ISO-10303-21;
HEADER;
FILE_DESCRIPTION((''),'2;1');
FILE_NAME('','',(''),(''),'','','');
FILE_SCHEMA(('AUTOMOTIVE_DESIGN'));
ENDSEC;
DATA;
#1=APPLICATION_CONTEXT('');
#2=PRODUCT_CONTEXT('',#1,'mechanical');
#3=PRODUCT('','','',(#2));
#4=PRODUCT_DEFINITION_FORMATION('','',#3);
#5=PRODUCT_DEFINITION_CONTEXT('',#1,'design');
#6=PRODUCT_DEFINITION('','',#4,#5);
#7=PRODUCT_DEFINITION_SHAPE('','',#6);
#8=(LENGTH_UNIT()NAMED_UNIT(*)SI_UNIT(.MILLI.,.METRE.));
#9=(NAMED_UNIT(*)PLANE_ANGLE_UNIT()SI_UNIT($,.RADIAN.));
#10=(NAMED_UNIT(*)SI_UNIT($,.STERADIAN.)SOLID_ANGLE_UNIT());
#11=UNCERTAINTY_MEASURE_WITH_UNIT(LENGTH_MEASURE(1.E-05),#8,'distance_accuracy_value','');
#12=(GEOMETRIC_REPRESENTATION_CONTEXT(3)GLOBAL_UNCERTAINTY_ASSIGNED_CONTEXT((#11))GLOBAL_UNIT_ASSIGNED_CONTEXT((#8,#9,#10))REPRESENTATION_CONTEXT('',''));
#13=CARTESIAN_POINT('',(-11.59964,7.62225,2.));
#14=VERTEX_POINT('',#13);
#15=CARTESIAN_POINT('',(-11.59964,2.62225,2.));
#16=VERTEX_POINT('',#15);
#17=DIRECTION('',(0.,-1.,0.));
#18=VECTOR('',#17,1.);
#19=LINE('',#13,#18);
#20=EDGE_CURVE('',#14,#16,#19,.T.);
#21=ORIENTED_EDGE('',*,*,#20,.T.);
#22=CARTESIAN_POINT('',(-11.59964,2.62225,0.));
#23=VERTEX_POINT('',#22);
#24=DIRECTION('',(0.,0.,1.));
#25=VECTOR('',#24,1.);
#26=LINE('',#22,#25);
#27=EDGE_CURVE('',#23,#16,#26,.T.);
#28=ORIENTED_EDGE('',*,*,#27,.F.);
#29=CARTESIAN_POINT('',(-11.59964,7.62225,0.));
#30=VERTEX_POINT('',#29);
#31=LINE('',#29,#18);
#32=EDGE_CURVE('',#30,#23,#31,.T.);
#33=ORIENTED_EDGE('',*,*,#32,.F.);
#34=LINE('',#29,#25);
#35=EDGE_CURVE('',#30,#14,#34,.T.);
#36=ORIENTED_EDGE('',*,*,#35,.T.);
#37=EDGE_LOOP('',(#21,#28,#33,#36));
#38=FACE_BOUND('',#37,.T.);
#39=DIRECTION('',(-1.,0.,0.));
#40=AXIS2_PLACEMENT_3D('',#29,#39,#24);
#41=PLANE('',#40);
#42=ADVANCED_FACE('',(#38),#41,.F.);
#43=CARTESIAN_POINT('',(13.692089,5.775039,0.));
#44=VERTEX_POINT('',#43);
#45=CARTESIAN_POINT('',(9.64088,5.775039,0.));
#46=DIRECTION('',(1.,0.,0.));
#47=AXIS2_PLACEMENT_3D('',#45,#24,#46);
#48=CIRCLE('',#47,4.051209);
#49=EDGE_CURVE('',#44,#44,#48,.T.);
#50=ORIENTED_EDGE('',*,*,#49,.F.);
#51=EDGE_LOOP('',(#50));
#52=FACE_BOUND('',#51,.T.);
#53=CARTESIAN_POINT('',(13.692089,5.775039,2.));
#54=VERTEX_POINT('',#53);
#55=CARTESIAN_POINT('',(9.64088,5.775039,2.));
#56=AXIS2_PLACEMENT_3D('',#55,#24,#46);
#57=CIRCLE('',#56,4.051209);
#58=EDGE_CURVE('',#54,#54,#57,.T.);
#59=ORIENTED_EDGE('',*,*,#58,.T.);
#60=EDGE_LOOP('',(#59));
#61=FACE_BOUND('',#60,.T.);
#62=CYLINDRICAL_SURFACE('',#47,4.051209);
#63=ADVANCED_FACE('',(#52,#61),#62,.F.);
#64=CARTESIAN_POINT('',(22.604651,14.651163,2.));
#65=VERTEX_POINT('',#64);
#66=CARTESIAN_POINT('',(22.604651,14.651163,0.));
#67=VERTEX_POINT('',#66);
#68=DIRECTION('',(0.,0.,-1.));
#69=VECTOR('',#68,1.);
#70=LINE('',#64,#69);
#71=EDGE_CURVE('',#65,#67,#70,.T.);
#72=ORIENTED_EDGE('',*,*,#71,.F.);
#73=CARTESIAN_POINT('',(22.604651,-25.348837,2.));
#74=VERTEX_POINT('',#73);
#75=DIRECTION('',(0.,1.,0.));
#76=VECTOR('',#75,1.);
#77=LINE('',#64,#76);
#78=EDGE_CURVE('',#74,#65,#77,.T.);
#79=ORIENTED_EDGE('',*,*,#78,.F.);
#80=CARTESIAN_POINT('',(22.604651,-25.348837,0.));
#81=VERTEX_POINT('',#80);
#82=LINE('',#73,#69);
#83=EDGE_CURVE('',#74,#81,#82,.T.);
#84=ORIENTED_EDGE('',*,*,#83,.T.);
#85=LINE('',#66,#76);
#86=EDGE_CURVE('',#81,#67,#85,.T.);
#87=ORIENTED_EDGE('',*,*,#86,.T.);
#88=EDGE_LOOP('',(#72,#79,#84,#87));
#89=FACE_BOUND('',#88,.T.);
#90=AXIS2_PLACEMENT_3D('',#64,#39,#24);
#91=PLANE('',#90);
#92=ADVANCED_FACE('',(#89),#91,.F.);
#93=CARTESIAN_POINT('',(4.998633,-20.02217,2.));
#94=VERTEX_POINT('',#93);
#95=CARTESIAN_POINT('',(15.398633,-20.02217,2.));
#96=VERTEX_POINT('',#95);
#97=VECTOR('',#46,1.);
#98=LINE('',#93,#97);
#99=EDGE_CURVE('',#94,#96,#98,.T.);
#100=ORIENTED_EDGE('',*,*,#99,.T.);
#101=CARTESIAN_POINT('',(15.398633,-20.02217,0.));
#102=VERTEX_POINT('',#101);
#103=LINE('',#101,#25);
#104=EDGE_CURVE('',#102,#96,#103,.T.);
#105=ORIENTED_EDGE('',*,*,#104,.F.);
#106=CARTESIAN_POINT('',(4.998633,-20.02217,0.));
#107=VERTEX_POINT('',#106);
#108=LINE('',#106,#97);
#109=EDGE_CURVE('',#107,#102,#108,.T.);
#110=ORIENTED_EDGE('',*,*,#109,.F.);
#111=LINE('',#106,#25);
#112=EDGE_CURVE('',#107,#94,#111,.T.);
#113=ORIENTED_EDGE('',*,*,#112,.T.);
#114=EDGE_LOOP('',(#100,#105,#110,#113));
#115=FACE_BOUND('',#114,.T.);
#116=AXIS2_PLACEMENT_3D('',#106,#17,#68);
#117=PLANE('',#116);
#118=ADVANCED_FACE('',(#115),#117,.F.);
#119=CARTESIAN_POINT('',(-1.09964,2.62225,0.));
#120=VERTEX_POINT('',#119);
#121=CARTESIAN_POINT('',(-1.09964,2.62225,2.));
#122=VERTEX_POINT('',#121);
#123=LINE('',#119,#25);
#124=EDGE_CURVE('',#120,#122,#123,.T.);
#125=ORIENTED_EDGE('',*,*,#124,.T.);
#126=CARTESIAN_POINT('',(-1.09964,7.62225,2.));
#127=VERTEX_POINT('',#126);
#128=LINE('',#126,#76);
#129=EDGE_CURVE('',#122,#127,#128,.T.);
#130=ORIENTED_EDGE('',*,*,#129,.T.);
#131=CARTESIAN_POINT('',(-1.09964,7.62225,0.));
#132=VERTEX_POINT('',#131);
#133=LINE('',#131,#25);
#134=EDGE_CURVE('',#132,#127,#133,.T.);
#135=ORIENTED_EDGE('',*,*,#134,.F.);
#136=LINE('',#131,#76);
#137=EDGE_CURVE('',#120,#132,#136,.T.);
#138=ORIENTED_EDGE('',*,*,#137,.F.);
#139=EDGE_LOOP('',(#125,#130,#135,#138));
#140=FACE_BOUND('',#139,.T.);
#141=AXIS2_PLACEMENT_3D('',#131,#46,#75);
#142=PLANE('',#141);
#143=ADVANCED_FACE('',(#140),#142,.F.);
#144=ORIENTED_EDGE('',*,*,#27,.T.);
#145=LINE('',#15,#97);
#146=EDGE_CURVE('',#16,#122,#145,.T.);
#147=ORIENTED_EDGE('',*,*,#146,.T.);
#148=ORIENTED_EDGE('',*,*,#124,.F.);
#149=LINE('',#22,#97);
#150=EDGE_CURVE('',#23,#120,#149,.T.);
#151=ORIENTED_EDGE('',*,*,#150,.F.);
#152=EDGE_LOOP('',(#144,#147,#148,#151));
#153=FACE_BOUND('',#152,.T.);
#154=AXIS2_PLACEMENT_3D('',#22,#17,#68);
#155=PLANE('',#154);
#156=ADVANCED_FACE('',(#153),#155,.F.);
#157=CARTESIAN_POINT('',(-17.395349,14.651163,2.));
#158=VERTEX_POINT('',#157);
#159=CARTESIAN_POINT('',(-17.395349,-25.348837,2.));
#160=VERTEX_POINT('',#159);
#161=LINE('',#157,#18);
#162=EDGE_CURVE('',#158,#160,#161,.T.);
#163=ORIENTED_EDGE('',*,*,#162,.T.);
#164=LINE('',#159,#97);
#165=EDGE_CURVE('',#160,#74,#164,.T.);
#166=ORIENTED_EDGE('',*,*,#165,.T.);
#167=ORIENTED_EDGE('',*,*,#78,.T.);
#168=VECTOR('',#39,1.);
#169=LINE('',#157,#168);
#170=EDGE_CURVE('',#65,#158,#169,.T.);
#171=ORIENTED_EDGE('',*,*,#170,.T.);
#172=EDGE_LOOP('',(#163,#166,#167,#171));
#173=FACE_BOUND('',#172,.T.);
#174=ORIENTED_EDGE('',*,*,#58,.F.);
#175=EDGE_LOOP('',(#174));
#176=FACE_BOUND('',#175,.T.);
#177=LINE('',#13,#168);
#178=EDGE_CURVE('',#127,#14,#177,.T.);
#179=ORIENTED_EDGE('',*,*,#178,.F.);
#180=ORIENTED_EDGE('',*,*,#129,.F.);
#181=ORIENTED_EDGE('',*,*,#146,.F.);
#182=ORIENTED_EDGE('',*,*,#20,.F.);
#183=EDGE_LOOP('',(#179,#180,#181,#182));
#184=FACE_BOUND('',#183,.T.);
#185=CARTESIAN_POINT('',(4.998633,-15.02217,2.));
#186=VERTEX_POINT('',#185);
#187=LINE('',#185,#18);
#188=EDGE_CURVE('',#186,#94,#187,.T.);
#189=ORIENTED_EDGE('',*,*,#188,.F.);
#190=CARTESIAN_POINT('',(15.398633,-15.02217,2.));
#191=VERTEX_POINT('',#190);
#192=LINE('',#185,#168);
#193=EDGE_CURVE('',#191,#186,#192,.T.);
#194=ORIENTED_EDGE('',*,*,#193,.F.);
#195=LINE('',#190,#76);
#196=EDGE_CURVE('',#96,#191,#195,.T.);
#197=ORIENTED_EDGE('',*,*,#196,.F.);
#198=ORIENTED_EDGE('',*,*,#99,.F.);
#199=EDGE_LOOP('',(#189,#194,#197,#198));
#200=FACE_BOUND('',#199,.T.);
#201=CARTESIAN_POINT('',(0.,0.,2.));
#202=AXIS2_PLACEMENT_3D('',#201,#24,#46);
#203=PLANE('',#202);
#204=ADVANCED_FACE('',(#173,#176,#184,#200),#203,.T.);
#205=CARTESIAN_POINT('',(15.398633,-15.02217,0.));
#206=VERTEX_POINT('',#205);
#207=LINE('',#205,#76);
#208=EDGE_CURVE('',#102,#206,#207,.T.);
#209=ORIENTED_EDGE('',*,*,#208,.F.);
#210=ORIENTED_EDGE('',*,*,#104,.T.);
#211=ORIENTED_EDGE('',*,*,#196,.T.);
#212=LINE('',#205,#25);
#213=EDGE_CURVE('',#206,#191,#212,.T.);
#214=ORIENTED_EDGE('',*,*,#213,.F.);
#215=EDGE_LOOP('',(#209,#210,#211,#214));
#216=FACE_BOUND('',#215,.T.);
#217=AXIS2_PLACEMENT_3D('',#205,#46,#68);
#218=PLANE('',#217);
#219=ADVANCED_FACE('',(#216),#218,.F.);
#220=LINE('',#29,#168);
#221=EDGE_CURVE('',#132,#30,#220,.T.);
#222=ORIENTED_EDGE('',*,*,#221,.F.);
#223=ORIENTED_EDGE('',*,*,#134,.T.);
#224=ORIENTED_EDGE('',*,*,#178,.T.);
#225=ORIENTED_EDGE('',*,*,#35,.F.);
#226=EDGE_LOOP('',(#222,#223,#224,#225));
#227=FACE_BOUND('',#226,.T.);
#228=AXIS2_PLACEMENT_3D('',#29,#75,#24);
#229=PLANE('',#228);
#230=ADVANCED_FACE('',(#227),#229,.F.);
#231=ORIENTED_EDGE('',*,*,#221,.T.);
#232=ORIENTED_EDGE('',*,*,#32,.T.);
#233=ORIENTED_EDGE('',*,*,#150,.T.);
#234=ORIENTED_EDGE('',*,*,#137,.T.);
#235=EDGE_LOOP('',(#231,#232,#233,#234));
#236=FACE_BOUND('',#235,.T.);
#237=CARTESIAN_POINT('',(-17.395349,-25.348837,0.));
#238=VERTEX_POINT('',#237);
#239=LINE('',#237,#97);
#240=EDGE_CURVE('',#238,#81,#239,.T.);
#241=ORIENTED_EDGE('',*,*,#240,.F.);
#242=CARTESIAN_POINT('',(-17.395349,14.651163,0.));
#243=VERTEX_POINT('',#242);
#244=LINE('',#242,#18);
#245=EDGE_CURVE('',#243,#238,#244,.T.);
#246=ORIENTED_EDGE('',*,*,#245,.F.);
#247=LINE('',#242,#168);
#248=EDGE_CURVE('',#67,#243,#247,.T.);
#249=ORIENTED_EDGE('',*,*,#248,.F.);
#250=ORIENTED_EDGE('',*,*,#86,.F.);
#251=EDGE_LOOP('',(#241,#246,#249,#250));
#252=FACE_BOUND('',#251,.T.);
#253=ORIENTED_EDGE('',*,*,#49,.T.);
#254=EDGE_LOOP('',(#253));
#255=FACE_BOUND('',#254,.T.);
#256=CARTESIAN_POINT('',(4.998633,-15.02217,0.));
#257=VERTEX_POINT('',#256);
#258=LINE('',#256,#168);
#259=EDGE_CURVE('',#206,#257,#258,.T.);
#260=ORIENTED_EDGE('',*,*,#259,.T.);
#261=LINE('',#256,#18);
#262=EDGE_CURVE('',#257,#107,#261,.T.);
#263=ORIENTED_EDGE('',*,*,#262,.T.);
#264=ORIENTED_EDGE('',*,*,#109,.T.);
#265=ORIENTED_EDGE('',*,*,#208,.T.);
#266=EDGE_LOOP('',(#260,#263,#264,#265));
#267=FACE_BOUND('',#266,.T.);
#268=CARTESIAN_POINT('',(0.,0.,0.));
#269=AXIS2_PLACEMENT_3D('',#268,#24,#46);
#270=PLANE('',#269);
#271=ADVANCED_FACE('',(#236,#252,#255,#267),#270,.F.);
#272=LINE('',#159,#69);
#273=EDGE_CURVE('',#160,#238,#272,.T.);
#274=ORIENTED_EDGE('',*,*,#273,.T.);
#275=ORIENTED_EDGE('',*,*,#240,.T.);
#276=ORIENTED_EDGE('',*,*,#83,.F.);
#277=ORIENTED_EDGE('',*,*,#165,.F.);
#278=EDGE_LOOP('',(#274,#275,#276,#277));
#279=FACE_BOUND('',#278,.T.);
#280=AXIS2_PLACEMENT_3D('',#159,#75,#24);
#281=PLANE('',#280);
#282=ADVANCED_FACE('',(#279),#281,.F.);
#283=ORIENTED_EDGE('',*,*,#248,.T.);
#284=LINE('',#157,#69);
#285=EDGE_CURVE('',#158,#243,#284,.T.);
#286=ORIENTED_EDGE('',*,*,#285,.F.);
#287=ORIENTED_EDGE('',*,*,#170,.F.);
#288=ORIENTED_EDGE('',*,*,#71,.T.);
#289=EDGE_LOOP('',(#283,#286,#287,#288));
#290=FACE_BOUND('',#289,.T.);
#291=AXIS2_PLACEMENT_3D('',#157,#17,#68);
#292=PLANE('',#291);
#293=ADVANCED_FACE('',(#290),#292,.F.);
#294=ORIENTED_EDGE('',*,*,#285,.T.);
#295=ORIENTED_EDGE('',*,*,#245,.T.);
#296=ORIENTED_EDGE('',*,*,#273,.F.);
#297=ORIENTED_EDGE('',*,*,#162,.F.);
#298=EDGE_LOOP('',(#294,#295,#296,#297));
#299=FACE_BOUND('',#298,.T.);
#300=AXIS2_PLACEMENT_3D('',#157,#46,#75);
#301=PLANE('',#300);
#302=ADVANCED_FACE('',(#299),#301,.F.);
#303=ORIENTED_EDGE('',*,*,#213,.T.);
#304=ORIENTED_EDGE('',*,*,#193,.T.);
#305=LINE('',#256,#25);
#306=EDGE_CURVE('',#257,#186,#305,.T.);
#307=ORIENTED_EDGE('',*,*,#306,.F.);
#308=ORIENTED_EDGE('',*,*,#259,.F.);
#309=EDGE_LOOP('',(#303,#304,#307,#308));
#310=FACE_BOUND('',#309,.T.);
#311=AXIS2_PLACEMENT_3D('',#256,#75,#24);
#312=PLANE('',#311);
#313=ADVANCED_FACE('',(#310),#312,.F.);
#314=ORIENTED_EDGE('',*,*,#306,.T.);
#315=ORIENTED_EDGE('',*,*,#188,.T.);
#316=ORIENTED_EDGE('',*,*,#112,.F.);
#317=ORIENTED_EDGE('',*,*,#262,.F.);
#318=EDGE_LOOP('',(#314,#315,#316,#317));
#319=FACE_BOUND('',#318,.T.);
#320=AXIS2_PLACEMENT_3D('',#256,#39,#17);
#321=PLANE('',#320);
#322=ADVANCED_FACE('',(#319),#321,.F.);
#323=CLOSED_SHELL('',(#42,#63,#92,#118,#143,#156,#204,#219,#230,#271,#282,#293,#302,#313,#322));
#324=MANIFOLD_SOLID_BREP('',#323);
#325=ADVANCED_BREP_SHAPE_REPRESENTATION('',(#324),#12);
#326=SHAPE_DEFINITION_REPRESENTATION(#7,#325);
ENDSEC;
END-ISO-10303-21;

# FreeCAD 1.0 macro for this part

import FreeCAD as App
import Part
import Sketcher


def add_polygon(sketch, points):
    """Adds a closed chain of lines whose ends are joined by coincident constraints."""
    first, n = sketch.GeometryCount, len(points)
    for a, b in zip(points, points[1:] + points[:1]):
        sketch.addGeometry(Part.LineSegment(App.Vector(*a, 0), App.Vector(*b, 0)), False)
    for i in range(n):
        sketch.addConstraint(Sketcher.Constraint("Coincident", first + i, 2, first + (i + 1) % n, 1))

doc = App.newDocument("Part")
body = doc.addObject("PartDesign::Body", "Body")

sketch1 = body.newObject("Sketcher::SketchObject", "Sketch")
sketch1.AttachmentSupport = (doc.getObject("XY_Plane"), [""])
sketch1.MapMode = "FlatFace"
add_polygon(sketch1, [(-17, 15), (-17, -25), (23, -25), (23, 15)])
sketch1.addConstraint([
    Sketcher.Constraint("Vertical", 0),
    Sketcher.Constraint("Horizontal", 1),
    Sketcher.Constraint("Vertical", 2),
    Sketcher.Constraint("Horizontal", 3),
    Sketcher.Constraint("Equal", 3, 0),
    Sketcher.Constraint("DistanceX", 1, 1, 1, 2, 40.0),
    Sketcher.Constraint("DistanceX", 0, 2, -1, 1, 17.395349),
    Sketcher.Constraint("DistanceY", 0, 2, -1, 1, 25.348837),
])
pad1 = body.newObject("PartDesign::Pad", "Pad")
pad1.Profile = sketch1
pad1.Length = 2

sketch2 = body.newObject("Sketcher::SketchObject", "Sketch001")
sketch2.AttachmentSupport = (doc.getObject("XY_Plane"), [""])
sketch2.MapMode = "FlatFace"
sketch2.AttachmentOffset = App.Placement(App.Vector(0, 0, 2), App.Rotation())
sketch2.addGeometry(Part.Circle(App.Vector(9.6, 5.8, 0), App.Vector(0, 0, 1), 4.1), False)
add_polygon(sketch2, [(-11.6, 7.6), (-11.6, 2.6), (-1.1, 2.6), (-1.1, 7.6)])
add_polygon(sketch2, [(5, -15), (5, -20), (15.4, -20), (15.4, -15)])
sketch2.addConstraint([
    Sketcher.Constraint("Vertical", 1),
    Sketcher.Constraint("Horizontal", 2),
    Sketcher.Constraint("Vertical", 3),
    Sketcher.Constraint("Horizontal", 4),
    Sketcher.Constraint("Vertical", 5),
    Sketcher.Constraint("Horizontal", 6),
    Sketcher.Constraint("Vertical", 7),
    Sketcher.Constraint("Horizontal", 8),
    Sketcher.Constraint("Equal", 3, 5),
    Sketcher.Constraint("DistanceY", 1, 2, 1, 1, 5.0),
    Sketcher.Constraint("DistanceX", 2, 1, 2, 2, 10.5),
    Sketcher.Constraint("DistanceX", 6, 1, 6, 2, 10.4),
    Sketcher.Constraint("Diameter", 0, 8.102418),
    Sketcher.Constraint("DistanceX", -1, 1, 0, 3, 9.64088),
    Sketcher.Constraint("DistanceY", -1, 1, 0, 3, 5.775039),
    Sketcher.Constraint("DistanceX", 1, 2, -1, 1, 11.59964),
    Sketcher.Constraint("DistanceY", -1, 1, 1, 2, 2.62225),
    Sketcher.Constraint("DistanceY", 5, 2, -1, 1, 20.02217),
    Sketcher.Constraint("DistanceX", -1, 1, 5, 2, 4.998633),
])
pocket1 = body.newObject("PartDesign::Pocket", "Pocket")
pocket1.Profile = sketch2
pocket1.Length = 2

doc.recompute()
